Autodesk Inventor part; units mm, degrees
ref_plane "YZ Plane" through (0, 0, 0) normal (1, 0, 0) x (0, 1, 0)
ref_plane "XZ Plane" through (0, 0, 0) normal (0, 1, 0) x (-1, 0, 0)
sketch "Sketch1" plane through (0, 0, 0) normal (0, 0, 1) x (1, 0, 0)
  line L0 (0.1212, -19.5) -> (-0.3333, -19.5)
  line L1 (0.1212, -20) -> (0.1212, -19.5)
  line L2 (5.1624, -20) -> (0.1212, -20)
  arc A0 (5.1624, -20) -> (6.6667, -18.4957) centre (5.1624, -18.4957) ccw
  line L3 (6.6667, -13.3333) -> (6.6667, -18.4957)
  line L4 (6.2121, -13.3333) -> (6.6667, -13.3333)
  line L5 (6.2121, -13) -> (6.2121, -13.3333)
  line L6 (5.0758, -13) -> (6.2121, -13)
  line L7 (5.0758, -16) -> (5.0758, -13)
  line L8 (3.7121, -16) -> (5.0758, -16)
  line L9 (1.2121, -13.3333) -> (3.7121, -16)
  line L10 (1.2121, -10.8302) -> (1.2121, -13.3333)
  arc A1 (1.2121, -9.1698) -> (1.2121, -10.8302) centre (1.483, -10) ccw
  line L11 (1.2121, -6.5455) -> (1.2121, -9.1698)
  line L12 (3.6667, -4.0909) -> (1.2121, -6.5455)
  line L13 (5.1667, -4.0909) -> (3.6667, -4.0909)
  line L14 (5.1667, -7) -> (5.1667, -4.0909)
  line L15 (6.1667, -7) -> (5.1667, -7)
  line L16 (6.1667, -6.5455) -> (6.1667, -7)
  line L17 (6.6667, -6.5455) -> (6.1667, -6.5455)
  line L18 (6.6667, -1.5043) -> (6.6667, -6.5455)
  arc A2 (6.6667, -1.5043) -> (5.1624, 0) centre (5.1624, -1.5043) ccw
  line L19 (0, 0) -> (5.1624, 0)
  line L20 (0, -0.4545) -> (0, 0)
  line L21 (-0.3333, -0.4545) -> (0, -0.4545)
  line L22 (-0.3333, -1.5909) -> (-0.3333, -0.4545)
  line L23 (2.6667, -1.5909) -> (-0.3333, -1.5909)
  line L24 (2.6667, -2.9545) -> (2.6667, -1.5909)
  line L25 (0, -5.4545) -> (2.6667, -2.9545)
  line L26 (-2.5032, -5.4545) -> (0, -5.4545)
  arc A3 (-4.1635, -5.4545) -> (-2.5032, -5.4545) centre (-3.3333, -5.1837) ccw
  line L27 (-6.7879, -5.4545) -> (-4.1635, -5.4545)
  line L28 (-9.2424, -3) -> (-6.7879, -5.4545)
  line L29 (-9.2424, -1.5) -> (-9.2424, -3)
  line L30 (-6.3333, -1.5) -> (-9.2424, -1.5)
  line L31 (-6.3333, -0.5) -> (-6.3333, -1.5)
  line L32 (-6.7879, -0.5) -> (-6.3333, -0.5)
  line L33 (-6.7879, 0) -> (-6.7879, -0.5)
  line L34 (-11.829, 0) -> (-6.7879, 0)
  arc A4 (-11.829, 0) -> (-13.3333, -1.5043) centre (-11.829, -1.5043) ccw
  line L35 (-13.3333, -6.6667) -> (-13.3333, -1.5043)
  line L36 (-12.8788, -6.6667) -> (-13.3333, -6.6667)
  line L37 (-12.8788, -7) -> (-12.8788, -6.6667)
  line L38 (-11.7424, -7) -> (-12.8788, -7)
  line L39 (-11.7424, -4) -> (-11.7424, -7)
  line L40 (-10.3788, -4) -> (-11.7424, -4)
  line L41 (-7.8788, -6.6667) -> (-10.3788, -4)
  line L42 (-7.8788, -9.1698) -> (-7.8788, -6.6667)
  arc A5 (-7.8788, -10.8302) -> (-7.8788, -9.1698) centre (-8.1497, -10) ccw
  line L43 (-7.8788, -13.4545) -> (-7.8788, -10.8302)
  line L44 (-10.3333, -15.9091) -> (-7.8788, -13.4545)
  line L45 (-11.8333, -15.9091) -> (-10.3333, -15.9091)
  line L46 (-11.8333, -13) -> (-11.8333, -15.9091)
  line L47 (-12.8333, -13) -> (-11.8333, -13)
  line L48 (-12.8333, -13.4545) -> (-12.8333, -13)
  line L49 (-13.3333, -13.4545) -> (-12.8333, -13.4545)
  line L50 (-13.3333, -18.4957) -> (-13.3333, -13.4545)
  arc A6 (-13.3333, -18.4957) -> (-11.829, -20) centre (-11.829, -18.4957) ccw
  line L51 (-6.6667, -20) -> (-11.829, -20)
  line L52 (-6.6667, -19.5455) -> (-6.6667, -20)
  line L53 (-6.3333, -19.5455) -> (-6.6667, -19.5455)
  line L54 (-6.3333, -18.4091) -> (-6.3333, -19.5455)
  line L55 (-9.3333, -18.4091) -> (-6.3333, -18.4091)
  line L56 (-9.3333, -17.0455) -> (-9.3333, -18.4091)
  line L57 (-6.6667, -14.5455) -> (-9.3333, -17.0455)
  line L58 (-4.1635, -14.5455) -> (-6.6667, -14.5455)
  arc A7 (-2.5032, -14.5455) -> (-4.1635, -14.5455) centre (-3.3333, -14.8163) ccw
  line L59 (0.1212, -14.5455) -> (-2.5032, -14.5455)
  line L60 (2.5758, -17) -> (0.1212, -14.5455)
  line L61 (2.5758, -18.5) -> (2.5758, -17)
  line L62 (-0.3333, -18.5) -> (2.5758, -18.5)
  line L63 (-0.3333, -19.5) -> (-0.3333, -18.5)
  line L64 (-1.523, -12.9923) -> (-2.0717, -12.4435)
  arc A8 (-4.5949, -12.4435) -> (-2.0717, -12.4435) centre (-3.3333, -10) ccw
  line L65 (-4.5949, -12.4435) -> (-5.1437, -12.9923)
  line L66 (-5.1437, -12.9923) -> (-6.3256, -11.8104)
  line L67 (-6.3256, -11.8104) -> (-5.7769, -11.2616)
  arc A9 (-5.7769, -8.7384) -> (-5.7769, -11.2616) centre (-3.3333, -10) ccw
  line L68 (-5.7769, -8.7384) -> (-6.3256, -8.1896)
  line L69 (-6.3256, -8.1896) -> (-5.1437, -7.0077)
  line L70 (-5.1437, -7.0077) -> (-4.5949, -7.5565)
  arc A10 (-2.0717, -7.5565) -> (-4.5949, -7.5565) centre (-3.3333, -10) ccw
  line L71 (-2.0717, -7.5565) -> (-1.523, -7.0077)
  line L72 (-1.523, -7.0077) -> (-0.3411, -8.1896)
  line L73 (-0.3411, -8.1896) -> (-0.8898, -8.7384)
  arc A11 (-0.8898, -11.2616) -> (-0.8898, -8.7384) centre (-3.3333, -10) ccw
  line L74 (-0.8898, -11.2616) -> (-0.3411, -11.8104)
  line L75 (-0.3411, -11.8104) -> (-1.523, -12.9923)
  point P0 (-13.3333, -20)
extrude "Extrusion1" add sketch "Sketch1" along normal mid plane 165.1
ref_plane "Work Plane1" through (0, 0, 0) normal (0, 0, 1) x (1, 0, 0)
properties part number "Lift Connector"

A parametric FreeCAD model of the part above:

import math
import FreeCAD as App
import Part
import Sketcher
Q = App.Units.Quantity

doc = App.newDocument("Part")
body = doc.addObject("PartDesign::Body", "Body")

# Sketch on XY plane
sketch1 = doc.addObject("Sketcher::SketchObject", "Sketch")
body.addObject(sketch1)
sketch1.AttachmentSupport = (doc.XY_Plane, [""])
sketch1.MapMode = "FlatFace"
sketch1.addGeometry([
    Part.LineSegment(App.Vector(-0.3333, -19.5, 0), App.Vector(0.1212, -19.5, 0)),  # 0
    Part.LineSegment(App.Vector(0.1212, -19.5, 0), App.Vector(0.1212, -20, 0)),  # 1
    Part.LineSegment(App.Vector(0.1212, -20, 0), App.Vector(5.1624, -20, 0)),  # 2
    Part.ArcOfCircle(Part.Circle(App.Vector(5.1624, -18.4957, 0), App.Vector(0, 0, 1), 1.5043), math.radians(-90), math.radians(0)),  # 3
    Part.LineSegment(App.Vector(6.6667, -18.4957, 0), App.Vector(6.6667, -13.3333, 0)),  # 4
    Part.LineSegment(App.Vector(6.6667, -13.3333, 0), App.Vector(6.2121, -13.3333, 0)),  # 5
    Part.LineSegment(App.Vector(6.2121, -13.3333, 0), App.Vector(6.2121, -13, 0)),  # 6
    Part.LineSegment(App.Vector(6.2121, -13, 0), App.Vector(5.0758, -13, 0)),  # 7
    Part.LineSegment(App.Vector(5.0758, -13, 0), App.Vector(5.0758, -16, 0)),  # 8
    Part.LineSegment(App.Vector(5.0758, -16, 0), App.Vector(3.7121, -16, 0)),  # 9
    Part.LineSegment(App.Vector(3.7121, -16, 0), App.Vector(1.2121, -13.3333, 0)),  # 10
    Part.LineSegment(App.Vector(1.2121, -13.3333, 0), App.Vector(1.2121, -10.8302, 0)),  # 11
    Part.ArcOfCircle(Part.Circle(App.Vector(1.483, -10, 0), App.Vector(0, 0, 1), 0.873281), math.radians(108.071863), math.radians(251.928137)),  # 12
    Part.LineSegment(App.Vector(1.2121, -9.1698, 0), App.Vector(1.2121, -6.5455, 0)),  # 13
    Part.LineSegment(App.Vector(1.2121, -6.5455, 0), App.Vector(3.6667, -4.0909, 0)),  # 14
    Part.LineSegment(App.Vector(3.6667, -4.0909, 0), App.Vector(5.1667, -4.0909, 0)),  # 15
    Part.LineSegment(App.Vector(5.1667, -4.0909, 0), App.Vector(5.1667, -7, 0)),  # 16
    Part.LineSegment(App.Vector(5.1667, -7, 0), App.Vector(6.1667, -7, 0)),  # 17
    Part.LineSegment(App.Vector(6.1667, -7, 0), App.Vector(6.1667, -6.5455, 0)),  # 18
    Part.LineSegment(App.Vector(6.1667, -6.5455, 0), App.Vector(6.6667, -6.5455, 0)),  # 19
    Part.LineSegment(App.Vector(6.6667, -6.5455, 0), App.Vector(6.6667, -1.5043, 0)),  # 20
    Part.ArcOfCircle(Part.Circle(App.Vector(5.1624, -1.5043, 0), App.Vector(0, 0, 1), 1.5043), math.radians(0), math.radians(90)),  # 21
    Part.LineSegment(App.Vector(5.1624, 0, 0), App.Vector(0, 0, 0)),  # 22
    Part.LineSegment(App.Vector(0, 0, 0), App.Vector(0, -0.4545, 0)),  # 23
    Part.LineSegment(App.Vector(0, -0.4545, 0), App.Vector(-0.3333, -0.4545, 0)),  # 24
    Part.LineSegment(App.Vector(-0.3333, -0.4545, 0), App.Vector(-0.3333, -1.5909, 0)),  # 25
    Part.LineSegment(App.Vector(-0.3333, -1.5909, 0), App.Vector(2.6667, -1.5909, 0)),  # 26
    Part.LineSegment(App.Vector(2.6667, -1.5909, 0), App.Vector(2.6667, -2.9545, 0)),  # 27
    Part.LineSegment(App.Vector(2.6667, -2.9545, 0), App.Vector(0, -5.4545, 0)),  # 28
    Part.LineSegment(App.Vector(0, -5.4545, 0), App.Vector(-2.5032, -5.4545, 0)),  # 29
    Part.ArcOfCircle(Part.Circle(App.Vector(-3.3333, -5.1837, 0), App.Vector(0, 0, 1), 0.873249), math.radians(-161.934375), math.radians(-18.06766)),  # 30
    Part.LineSegment(App.Vector(-4.1635, -5.4545, 0), App.Vector(-6.7879, -5.4545, 0)),  # 31
    Part.LineSegment(App.Vector(-6.7879, -5.4545, 0), App.Vector(-9.2424, -3, 0)),  # 32
    Part.LineSegment(App.Vector(-9.2424, -3, 0), App.Vector(-9.2424, -1.5, 0)),  # 33
    Part.LineSegment(App.Vector(-9.2424, -1.5, 0), App.Vector(-6.3333, -1.5, 0)),  # 34
    Part.LineSegment(App.Vector(-6.3333, -1.5, 0), App.Vector(-6.3333, -0.5, 0)),  # 35
    Part.LineSegment(App.Vector(-6.3333, -0.5, 0), App.Vector(-6.7879, -0.5, 0)),  # 36
    Part.LineSegment(App.Vector(-6.7879, -0.5, 0), App.Vector(-6.7879, 0, 0)),  # 37
    Part.LineSegment(App.Vector(-6.7879, 0, 0), App.Vector(-11.829, 0, 0)),  # 38
    Part.ArcOfCircle(Part.Circle(App.Vector(-11.829, -1.5043, 0), App.Vector(0, 0, 1), 1.5043), math.radians(90), math.radians(180)),  # 39
    Part.LineSegment(App.Vector(-13.3333, -1.5043, 0), App.Vector(-13.3333, -6.6667, 0)),  # 40
    Part.LineSegment(App.Vector(-13.3333, -6.6667, 0), App.Vector(-12.8788, -6.6667, 0)),  # 41
    Part.LineSegment(App.Vector(-12.8788, -6.6667, 0), App.Vector(-12.8788, -7, 0)),  # 42
    Part.LineSegment(App.Vector(-12.8788, -7, 0), App.Vector(-11.7424, -7, 0)),  # 43
    Part.LineSegment(App.Vector(-11.7424, -7, 0), App.Vector(-11.7424, -4, 0)),  # 44
    Part.LineSegment(App.Vector(-11.7424, -4, 0), App.Vector(-10.3788, -4, 0)),  # 45
    Part.LineSegment(App.Vector(-10.3788, -4, 0), App.Vector(-7.8788, -6.6667, 0)),  # 46
    Part.LineSegment(App.Vector(-7.8788, -6.6667, 0), App.Vector(-7.8788, -9.1698, 0)),  # 47
    Part.ArcOfCircle(Part.Circle(App.Vector(-8.1497, -10, 0), App.Vector(0, 0, 1), 0.873281), math.radians(-71.928137), math.radians(71.928137)),  # 48
    Part.LineSegment(App.Vector(-7.8788, -10.8302, 0), App.Vector(-7.8788, -13.4545, 0)),  # 49
    Part.LineSegment(App.Vector(-7.8788, -13.4545, 0), App.Vector(-10.3333, -15.9091, 0)),  # 50
    Part.LineSegment(App.Vector(-10.3333, -15.9091, 0), App.Vector(-11.8333, -15.9091, 0)),  # 51
    Part.LineSegment(App.Vector(-11.8333, -15.9091, 0), App.Vector(-11.8333, -13, 0)),  # 52
    Part.LineSegment(App.Vector(-11.8333, -13, 0), App.Vector(-12.8333, -13, 0)),  # 53
    Part.LineSegment(App.Vector(-12.8333, -13, 0), App.Vector(-12.8333, -13.4545, 0)),  # 54
    Part.LineSegment(App.Vector(-12.8333, -13.4545, 0), App.Vector(-13.3333, -13.4545, 0)),  # 55
    Part.LineSegment(App.Vector(-13.3333, -13.4545, 0), App.Vector(-13.3333, -18.4957, 0)),  # 56
    Part.ArcOfCircle(Part.Circle(App.Vector(-11.829, -18.4957, 0), App.Vector(0, 0, 1), 1.5043), math.radians(180), math.radians(270)),  # 57
    Part.LineSegment(App.Vector(-11.829, -20, 0), App.Vector(-6.6667, -20, 0)),  # 58
    Part.LineSegment(App.Vector(-6.6667, -20, 0), App.Vector(-6.6667, -19.5455, 0)),  # 59
    Part.LineSegment(App.Vector(-6.6667, -19.5455, 0), App.Vector(-6.3333, -19.5455, 0)),  # 60
    Part.LineSegment(App.Vector(-6.3333, -19.5455, 0), App.Vector(-6.3333, -18.4091, 0)),  # 61
    Part.LineSegment(App.Vector(-6.3333, -18.4091, 0), App.Vector(-9.3333, -18.4091, 0)),  # 62
    Part.LineSegment(App.Vector(-9.3333, -18.4091, 0), App.Vector(-9.3333, -17.0455, 0)),  # 63
    Part.LineSegment(App.Vector(-9.3333, -17.0455, 0), App.Vector(-6.6667, -14.5455, 0)),  # 64
    Part.LineSegment(App.Vector(-6.6667, -14.5455, 0), App.Vector(-4.1635, -14.5455, 0)),  # 65
    Part.ArcOfCircle(Part.Circle(App.Vector(-3.3333, -14.8163, 0), App.Vector(0, 0, 1), 0.873154), math.radians(18.06766), math.radians(161.934375)),  # 66
    Part.LineSegment(App.Vector(-2.5032, -14.5455, 0), App.Vector(0.1212, -14.5455, 0)),  # 67
    Part.LineSegment(App.Vector(0.1212, -14.5455, 0), App.Vector(2.5758, -17, 0)),  # 68
    Part.LineSegment(App.Vector(2.5758, -17, 0), App.Vector(2.5758, -18.5, 0)),  # 69
    Part.LineSegment(App.Vector(2.5758, -18.5, 0), App.Vector(-0.3333, -18.5, 0)),  # 70
    Part.LineSegment(App.Vector(-0.3333, -18.5, 0), App.Vector(-0.3333, -19.5, 0)),  # 71
    Part.LineSegment(App.Vector(-0.3411, -11.8104, 0), App.Vector(-1.523, -12.9923, 0)),  # 72
    Part.LineSegment(App.Vector(-1.523, -12.9923, 0), App.Vector(-2.0717, -12.4435, 0)),  # 73
    Part.ArcOfCircle(Part.Circle(App.Vector(-3.3333, -10, 0), App.Vector(0, 0, 1), 2.749969), math.radians(-117.307695), math.radians(-62.692305)),  # 74
    Part.LineSegment(App.Vector(-4.5949, -12.4435, 0), App.Vector(-5.1437, -12.9923, 0)),  # 75
    Part.LineSegment(App.Vector(-5.1437, -12.9923, 0), App.Vector(-6.3256, -11.8104, 0)),  # 76
    Part.LineSegment(App.Vector(-6.3256, -11.8104, 0), App.Vector(-5.7769, -11.2616, 0)),  # 77
    Part.ArcOfCircle(Part.Circle(App.Vector(-3.3333, -10, 0), App.Vector(0, 0, 1), 2.750057), math.radians(152.693261), math.radians(207.306739)),  # 78
    Part.LineSegment(App.Vector(-5.7769, -8.7384, 0), App.Vector(-6.3256, -8.1896, 0)),  # 79
    Part.LineSegment(App.Vector(-6.3256, -8.1896, 0), App.Vector(-5.1437, -7.0077, 0)),  # 80
    Part.LineSegment(App.Vector(-5.1437, -7.0077, 0), App.Vector(-4.5949, -7.5565, 0)),  # 81
    Part.ArcOfCircle(Part.Circle(App.Vector(-3.3333, -10, 0), App.Vector(0, 0, 1), 2.749969), math.radians(62.692305), math.radians(117.307695)),  # 82
    Part.LineSegment(App.Vector(-2.0717, -7.5565, 0), App.Vector(-1.523, -7.0077, 0)),  # 83
    Part.LineSegment(App.Vector(-1.523, -7.0077, 0), App.Vector(-0.3411, -8.1896, 0)),  # 84
    Part.LineSegment(App.Vector(-0.3411, -8.1896, 0), App.Vector(-0.8898, -8.7384, 0)),  # 85
    Part.ArcOfCircle(Part.Circle(App.Vector(-3.3333, -10, 0), App.Vector(0, 0, 1), 2.749969), math.radians(-27.307695), math.radians(27.307695)),  # 86
    Part.LineSegment(App.Vector(-0.8898, -11.2616, 0), App.Vector(-0.3411, -11.8104, 0)),  # 87
], False)
sketch1.addConstraint([
    Sketcher.Constraint("Coincident", 0, 2, 1, 1),
    Sketcher.Constraint("Coincident", 1, 2, 2, 1),
    Sketcher.Constraint("Tangent", 2, 2, 3, 1),
    Sketcher.Constraint("Tangent", 3, 2, 4, 1),
    Sketcher.Constraint("Coincident", 4, 2, 5, 1),
    Sketcher.Constraint("Coincident", 5, 2, 6, 1),
    Sketcher.Constraint("Coincident", 6, 2, 7, 1),
    Sketcher.Constraint("Coincident", 7, 2, 8, 1),
    Sketcher.Constraint("Coincident", 8, 2, 9, 1),
    Sketcher.Constraint("Coincident", 9, 2, 10, 1),
    Sketcher.Constraint("Coincident", 10, 2, 11, 1),
    Sketcher.Constraint("Coincident", 11, 2, 12, 2),
    Sketcher.Constraint("Coincident", 12, 1, 13, 1),
    Sketcher.Constraint("Coincident", 13, 2, 14, 1),
    Sketcher.Constraint("Coincident", 14, 2, 15, 1),
    Sketcher.Constraint("Coincident", 15, 2, 16, 1),
    Sketcher.Constraint("Coincident", 16, 2, 17, 1),
    Sketcher.Constraint("Coincident", 17, 2, 18, 1),
    Sketcher.Constraint("Coincident", 18, 2, 19, 1),
    Sketcher.Constraint("Coincident", 19, 2, 20, 1),
    Sketcher.Constraint("Tangent", 20, 2, 21, 1),
    Sketcher.Constraint("Tangent", 21, 2, 22, 1),
    Sketcher.Constraint("Coincident", 22, 2, 23, 1),
    Sketcher.Constraint("Coincident", 23, 2, 24, 1),
    Sketcher.Constraint("Coincident", 24, 2, 25, 1),
    Sketcher.Constraint("Coincident", 25, 2, 26, 1),
    Sketcher.Constraint("Coincident", 26, 2, 27, 1),
    Sketcher.Constraint("Coincident", 27, 2, 28, 1),
    Sketcher.Constraint("Coincident", 28, 2, 29, 1),
    Sketcher.Constraint("Coincident", 29, 2, 30, 2),
    Sketcher.Constraint("Coincident", 30, 1, 31, 1),
    Sketcher.Constraint("Coincident", 31, 2, 32, 1),
    Sketcher.Constraint("Coincident", 32, 2, 33, 1),
    Sketcher.Constraint("Coincident", 33, 2, 34, 1),
    Sketcher.Constraint("Coincident", 34, 2, 35, 1),
    Sketcher.Constraint("Coincident", 35, 2, 36, 1),
    Sketcher.Constraint("Coincident", 36, 2, 37, 1),
    Sketcher.Constraint("Coincident", 37, 2, 38, 1),
    Sketcher.Constraint("Tangent", 38, 2, 39, 1),
    Sketcher.Constraint("Tangent", 39, 2, 40, 1),
    Sketcher.Constraint("Coincident", 40, 2, 41, 1),
    Sketcher.Constraint("Coincident", 41, 2, 42, 1),
    Sketcher.Constraint("Coincident", 42, 2, 43, 1),
    Sketcher.Constraint("Coincident", 43, 2, 44, 1),
    Sketcher.Constraint("Coincident", 44, 2, 45, 1),
    Sketcher.Constraint("Coincident", 45, 2, 46, 1),
    Sketcher.Constraint("Coincident", 46, 2, 47, 1),
    Sketcher.Constraint("Coincident", 47, 2, 48, 2),
    Sketcher.Constraint("Coincident", 48, 1, 49, 1),
    Sketcher.Constraint("Coincident", 49, 2, 50, 1),
    Sketcher.Constraint("Coincident", 50, 2, 51, 1),
    Sketcher.Constraint("Coincident", 51, 2, 52, 1),
    Sketcher.Constraint("Coincident", 52, 2, 53, 1),
    Sketcher.Constraint("Coincident", 53, 2, 54, 1),
    Sketcher.Constraint("Coincident", 54, 2, 55, 1),
    Sketcher.Constraint("Coincident", 55, 2, 56, 1),
    Sketcher.Constraint("Tangent", 56, 2, 57, 1),
    Sketcher.Constraint("Tangent", 57, 2, 58, 1),
    Sketcher.Constraint("Coincident", 58, 2, 59, 1),
    Sketcher.Constraint("Coincident", 59, 2, 60, 1),
    Sketcher.Constraint("Coincident", 60, 2, 61, 1),
    Sketcher.Constraint("Coincident", 61, 2, 62, 1),
    Sketcher.Constraint("Coincident", 62, 2, 63, 1),
    Sketcher.Constraint("Coincident", 63, 2, 64, 1),
    Sketcher.Constraint("Coincident", 64, 2, 65, 1),
    Sketcher.Constraint("Coincident", 65, 2, 66, 2),
    Sketcher.Constraint("Coincident", 66, 1, 67, 1),
    Sketcher.Constraint("Coincident", 67, 2, 68, 1),
    Sketcher.Constraint("Coincident", 68, 2, 69, 1),
    Sketcher.Constraint("Coincident", 69, 2, 70, 1),
    Sketcher.Constraint("Coincident", 70, 2, 71, 1),
    Sketcher.Constraint("Coincident", 71, 2, 0, 1),
    Sketcher.Constraint("Coincident", 72, 2, 73, 1),
    Sketcher.Constraint("Coincident", 73, 2, 74, 2),
    Sketcher.Constraint("Coincident", 74, 1, 75, 1),
    Sketcher.Constraint("Coincident", 75, 2, 76, 1),
    Sketcher.Constraint("Coincident", 76, 2, 77, 1),
    Sketcher.Constraint("Coincident", 77, 2, 78, 2),
    Sketcher.Constraint("Coincident", 78, 1, 79, 1),
    Sketcher.Constraint("Coincident", 79, 2, 80, 1),
    Sketcher.Constraint("Coincident", 80, 2, 81, 1),
    Sketcher.Constraint("Coincident", 81, 2, 82, 2),
    Sketcher.Constraint("Coincident", 82, 1, 83, 1),
    Sketcher.Constraint("Coincident", 83, 2, 84, 1),
    Sketcher.Constraint("Coincident", 84, 2, 85, 1),
    Sketcher.Constraint("Coincident", 85, 2, 86, 2),
    Sketcher.Constraint("Coincident", 86, 1, 87, 1),
    Sketcher.Constraint("Coincident", 87, 2, 72, 1),
    Sketcher.Constraint("Horizontal", 0),
    Sketcher.Constraint("Vertical", 1),
    Sketcher.Constraint("Horizontal", 2),
    Sketcher.Constraint("Vertical", 4),
    Sketcher.Constraint("Horizontal", 5),
    Sketcher.Constraint("Vertical", 6),
    Sketcher.Constraint("Horizontal", 7),
    Sketcher.Constraint("Vertical", 8),
    Sketcher.Constraint("Horizontal", 9),
    Sketcher.Constraint("Vertical", 11),
    Sketcher.Constraint("Vertical", 13),
    Sketcher.Constraint("Horizontal", 15),
    Sketcher.Constraint("Vertical", 16),
    Sketcher.Constraint("Horizontal", 17),
    Sketcher.Constraint("Vertical", 18),
    Sketcher.Constraint("Horizontal", 19),
    Sketcher.Constraint("Vertical", 20),
    Sketcher.Constraint("Horizontal", 22),
    Sketcher.Constraint("Vertical", 23),
    Sketcher.Constraint("Horizontal", 24),
    Sketcher.Constraint("Vertical", 25),
    Sketcher.Constraint("Horizontal", 26),
    Sketcher.Constraint("Vertical", 27),
    Sketcher.Constraint("Horizontal", 29),
    Sketcher.Constraint("Horizontal", 31),
    Sketcher.Constraint("Vertical", 33),
    Sketcher.Constraint("Horizontal", 34),
    Sketcher.Constraint("Vertical", 35),
    Sketcher.Constraint("Horizontal", 36),
    Sketcher.Constraint("Vertical", 37),
    Sketcher.Constraint("Horizontal", 38),
    Sketcher.Constraint("Vertical", 40),
    Sketcher.Constraint("Horizontal", 41),
    Sketcher.Constraint("Vertical", 42),
    Sketcher.Constraint("Horizontal", 43),
    Sketcher.Constraint("Vertical", 44),
    Sketcher.Constraint("Horizontal", 45),
    Sketcher.Constraint("Vertical", 47),
    Sketcher.Constraint("Vertical", 49),
    Sketcher.Constraint("Horizontal", 51),
    Sketcher.Constraint("Vertical", 52),
    Sketcher.Constraint("Horizontal", 53),
    Sketcher.Constraint("Vertical", 54),
    Sketcher.Constraint("Horizontal", 55),
    Sketcher.Constraint("Vertical", 56),
    Sketcher.Constraint("Horizontal", 58),
    Sketcher.Constraint("Vertical", 59),
    Sketcher.Constraint("Horizontal", 60),
    Sketcher.Constraint("Vertical", 61),
    Sketcher.Constraint("Horizontal", 62),
    Sketcher.Constraint("Vertical", 63),
    Sketcher.Constraint("Horizontal", 65),
    Sketcher.Constraint("Horizontal", 67),
    Sketcher.Constraint("Vertical", 69),
    Sketcher.Constraint("Horizontal", 70),
    Sketcher.Constraint("Vertical", 71),
    Sketcher.Constraint("Coincident", 22, 2, -1, 1),
    Sketcher.Constraint("Coincident", 78, 3, 74, 3),
    Sketcher.Constraint("Coincident", 82, 3, 74, 3),
    Sketcher.Constraint("Coincident", 86, 3, 74, 3),
    Sketcher.Constraint("Equal", 3, 21),
    Sketcher.Constraint("Equal", 12, 30),
    Sketcher.Constraint("Equal", 21, 39),
    Sketcher.Constraint("Equal", 30, 48),
    Sketcher.Constraint("Equal", 39, 57),
    Sketcher.Constraint("Equal", 48, 66),
    Sketcher.Constraint("Equal", 74, 78),
    Sketcher.Constraint("Equal", 78, 82),
    Sketcher.Constraint("Equal", 82, 86),
    Sketcher.Constraint("PointOnObject", 28, 2, -2),
    Sketcher.Constraint("PointOnObject", 37, 2, -1),
    Sketcher.Constraint("Perpendicular", 10, 28),
    Sketcher.Constraint("Perpendicular", 14, 32),
    Sketcher.Constraint("Perpendicular", 28, 46),
    Sketcher.Constraint("Perpendicular", 32, 50),
    Sketcher.Constraint("Perpendicular", 46, 64),
    Sketcher.Constraint("Perpendicular", 50, 68),
    Sketcher.Constraint("Perpendicular", 68, 72),
    Sketcher.Constraint("Perpendicular", 72, 73),
    Sketcher.Constraint("Perpendicular", 73, 75),
    Sketcher.Constraint("Perpendicular", 75, 76),
    Sketcher.Constraint("Perpendicular", 76, 77),
    Sketcher.Constraint("Perpendicular", 77, 79),
    Sketcher.Constraint("Perpendicular", 79, 80),
    Sketcher.Constraint("Perpendicular", 80, 81),
    Sketcher.Constraint("Perpendicular", 81, 83),
    Sketcher.Constraint("Perpendicular", 83, 84),
    Sketcher.Constraint("Perpendicular", 84, 85),
    Sketcher.Constraint("Perpendicular", 85, 87),
    Sketcher.Constraint("Horizontal", 12, 3, 48, 3),
    Sketcher.Constraint("Horizontal", 3, 3, 57, 3),
    Sketcher.Constraint("Horizontal", 48, 3, 74, 3),
    Sketcher.Constraint("Horizontal", 5, 2, 10, 2),
    Sketcher.Constraint("Horizontal", 13, 2, 18, 2),
    Sketcher.Constraint("Horizontal", 29, 2, 30, 1),
    Sketcher.Constraint("Horizontal", 17, 2, 42, 2),
    Sketcher.Constraint("Horizontal", 41, 2, 46, 2),
    Sketcher.Constraint("Horizontal", 12, 1, 47, 2),
    Sketcher.Constraint("Horizontal", 11, 2, 48, 1),
    Sketcher.Constraint("Horizontal", 7, 2, 52, 2),
    Sketcher.Constraint("Horizontal", 49, 2, 54, 2),
    Sketcher.Constraint("Horizontal", 65, 2, 66, 1),
    Sketcher.Constraint("Horizontal", 73, 2, 74, 1),
    Sketcher.Constraint("Horizontal", 72, 2, 75, 2),
    Sketcher.Constraint("Horizontal", 81, 2, 82, 1),
    Sketcher.Constraint("Horizontal", 80, 2, 83, 2),
    Sketcher.Constraint("Horizontal", 79, 2, 84, 2),
    Sketcher.Constraint("Horizontal", 78, 1, 85, 2),
    Sketcher.Constraint("Horizontal", 77, 2, 86, 1),
    Sketcher.Constraint("Vertical", 3, 3, 21, 3),
    Sketcher.Constraint("Vertical", 39, 3, 57, 3),
    Sketcher.Constraint("Vertical", 30, 3, 66, 3),
    Sketcher.Constraint("Vertical", 66, 3, 74, 3),
    Sketcher.Constraint("Vertical", 11, 2, 12, 1),
    Sketcher.Constraint("Vertical", 31, 2, 36, 2),
    Sketcher.Constraint("Vertical", 35, 2, 60, 2),
    Sketcher.Constraint("Vertical", 59, 2, 64, 2),
    Sketcher.Constraint("Vertical", 30, 1, 65, 2),
    Sketcher.Constraint("Vertical", 1, 2, 67, 2),
    Sketcher.Constraint("Vertical", 25, 2, 70, 2),
    Sketcher.Constraint("Vertical", 77, 2, 78, 1),
    Sketcher.Constraint("Vertical", 76, 2, 79, 2),
    Sketcher.Constraint("Vertical", 75, 2, 80, 2),
    Sketcher.Constraint("Equal", 0, 5),
    Sketcher.Constraint("Equal", 5, 36),
    Sketcher.Constraint("Equal", 2, 38),
    Sketcher.Constraint("Equal", 36, 41),
    Sketcher.Constraint("Equal", 7, 43),
    Sketcher.Constraint("Equal", 9, 45),
    Sketcher.Constraint("Equal", 15, 51),
    Sketcher.Constraint("Equal", 17, 53),
    Sketcher.Constraint("Equal", 19, 55),
    Sketcher.Constraint("Equal", 22, 58),
    Sketcher.Constraint("Equal", 26, 62),
    Sketcher.Constraint("Equal", 29, 65),
    Sketcher.Constraint("Equal", 34, 70),
    Sketcher.Constraint("Equal", 55, 1),
    Sketcher.Constraint("Equal", 58, 4),
    Sketcher.Constraint("Equal", 60, 6),
    Sketcher.Constraint("Equal", 62, 8),
    Sketcher.Constraint("Equal", 65, 11),
    Sketcher.Constraint("Equal", 67, 13),
    Sketcher.Constraint("Equal", 70, 16),
    Sketcher.Constraint("Equal", 41, 18),
    Sketcher.Constraint("Equal", 38, 20),
    Sketcher.Constraint("Equal", 18, 23),
    Sketcher.Constraint("Equal", 43, 25),
    Sketcher.Constraint("Equal", 45, 27),
    Sketcher.Constraint("Equal", 51, 33),
    Sketcher.Constraint("Equal", 53, 35),
    Sketcher.Constraint("Equal", 4, 40),
    Sketcher.Constraint("Equal", 8, 44),
    Sketcher.Constraint("Equal", 13, 49),
    Sketcher.Constraint("Equal", 54, 59),
    Sketcher.Constraint("Equal", 25, 61),
    Sketcher.Constraint("Equal", 27, 63),
    Sketcher.Constraint("Equal", 33, 69),
    Sketcher.Constraint("Equal", 75, 77),
    Sketcher.Constraint("DistanceX", 17, 1, 17, 2, Q("1 mm")),
    Sketcher.Constraint("DistanceX", 26, 1, 26, 2, Q("3 mm")),
    Sketcher.Constraint("Radius", 74, Q("2.75 mm")),
    Sketcher.Constraint("DistanceX", 15, 1, 15, 2, Q("1.5 mm")),
    Sketcher.Constraint("DistanceX", 19, 1, 19, 2, Q("0.5 mm")),
    Sketcher.Constraint("DistanceY", 12, 3, -1, 1, Q("10 mm")),
    Sketcher.Constraint("DistanceY", 6, 2, -1, 1, Q("13 mm")),
    Sketcher.Constraint("Radius", 3, Q("1.5043 mm")),
    Sketcher.Constraint("Radius", 12, Q("0.8733 mm")),
    Sketcher.Constraint("DistanceX", 34, 1, 34, 2, Q("2.909 mm")),
    Sketcher.Constraint("DistanceX", 38, 2, 38, 1, Q("5.041 mm")),
    Sketcher.Constraint("DistanceY", 11, 1, 11, 2, Q("2.503 mm")),
    Sketcher.Constraint("Distance", 73, Q("0.776 mm")),
    Sketcher.Constraint("DistanceX", 7, 2, 7, 1, Q("1.1363 mm")),
    Sketcher.Constraint("DistanceX", 9, 2, 9, 1, Q("1.3637 mm")),
    Sketcher.Constraint("DistanceX", 22, 2, 22, 1, Q("5.1624 mm")),
    Sketcher.Constraint("DistanceX", 39, 3, -1, 1, Q("11.829 mm")),
    Sketcher.Constraint("DistanceX", 72, 2, -1, 1, Q("1.523 mm")),
])
pad1 = doc.addObject("PartDesign::Pad", "Pad")
body.addObject(pad1)
pad1.Profile = sketch1
pad1.Length = 165.1
pad1.Midplane = True

doc.recompute()
